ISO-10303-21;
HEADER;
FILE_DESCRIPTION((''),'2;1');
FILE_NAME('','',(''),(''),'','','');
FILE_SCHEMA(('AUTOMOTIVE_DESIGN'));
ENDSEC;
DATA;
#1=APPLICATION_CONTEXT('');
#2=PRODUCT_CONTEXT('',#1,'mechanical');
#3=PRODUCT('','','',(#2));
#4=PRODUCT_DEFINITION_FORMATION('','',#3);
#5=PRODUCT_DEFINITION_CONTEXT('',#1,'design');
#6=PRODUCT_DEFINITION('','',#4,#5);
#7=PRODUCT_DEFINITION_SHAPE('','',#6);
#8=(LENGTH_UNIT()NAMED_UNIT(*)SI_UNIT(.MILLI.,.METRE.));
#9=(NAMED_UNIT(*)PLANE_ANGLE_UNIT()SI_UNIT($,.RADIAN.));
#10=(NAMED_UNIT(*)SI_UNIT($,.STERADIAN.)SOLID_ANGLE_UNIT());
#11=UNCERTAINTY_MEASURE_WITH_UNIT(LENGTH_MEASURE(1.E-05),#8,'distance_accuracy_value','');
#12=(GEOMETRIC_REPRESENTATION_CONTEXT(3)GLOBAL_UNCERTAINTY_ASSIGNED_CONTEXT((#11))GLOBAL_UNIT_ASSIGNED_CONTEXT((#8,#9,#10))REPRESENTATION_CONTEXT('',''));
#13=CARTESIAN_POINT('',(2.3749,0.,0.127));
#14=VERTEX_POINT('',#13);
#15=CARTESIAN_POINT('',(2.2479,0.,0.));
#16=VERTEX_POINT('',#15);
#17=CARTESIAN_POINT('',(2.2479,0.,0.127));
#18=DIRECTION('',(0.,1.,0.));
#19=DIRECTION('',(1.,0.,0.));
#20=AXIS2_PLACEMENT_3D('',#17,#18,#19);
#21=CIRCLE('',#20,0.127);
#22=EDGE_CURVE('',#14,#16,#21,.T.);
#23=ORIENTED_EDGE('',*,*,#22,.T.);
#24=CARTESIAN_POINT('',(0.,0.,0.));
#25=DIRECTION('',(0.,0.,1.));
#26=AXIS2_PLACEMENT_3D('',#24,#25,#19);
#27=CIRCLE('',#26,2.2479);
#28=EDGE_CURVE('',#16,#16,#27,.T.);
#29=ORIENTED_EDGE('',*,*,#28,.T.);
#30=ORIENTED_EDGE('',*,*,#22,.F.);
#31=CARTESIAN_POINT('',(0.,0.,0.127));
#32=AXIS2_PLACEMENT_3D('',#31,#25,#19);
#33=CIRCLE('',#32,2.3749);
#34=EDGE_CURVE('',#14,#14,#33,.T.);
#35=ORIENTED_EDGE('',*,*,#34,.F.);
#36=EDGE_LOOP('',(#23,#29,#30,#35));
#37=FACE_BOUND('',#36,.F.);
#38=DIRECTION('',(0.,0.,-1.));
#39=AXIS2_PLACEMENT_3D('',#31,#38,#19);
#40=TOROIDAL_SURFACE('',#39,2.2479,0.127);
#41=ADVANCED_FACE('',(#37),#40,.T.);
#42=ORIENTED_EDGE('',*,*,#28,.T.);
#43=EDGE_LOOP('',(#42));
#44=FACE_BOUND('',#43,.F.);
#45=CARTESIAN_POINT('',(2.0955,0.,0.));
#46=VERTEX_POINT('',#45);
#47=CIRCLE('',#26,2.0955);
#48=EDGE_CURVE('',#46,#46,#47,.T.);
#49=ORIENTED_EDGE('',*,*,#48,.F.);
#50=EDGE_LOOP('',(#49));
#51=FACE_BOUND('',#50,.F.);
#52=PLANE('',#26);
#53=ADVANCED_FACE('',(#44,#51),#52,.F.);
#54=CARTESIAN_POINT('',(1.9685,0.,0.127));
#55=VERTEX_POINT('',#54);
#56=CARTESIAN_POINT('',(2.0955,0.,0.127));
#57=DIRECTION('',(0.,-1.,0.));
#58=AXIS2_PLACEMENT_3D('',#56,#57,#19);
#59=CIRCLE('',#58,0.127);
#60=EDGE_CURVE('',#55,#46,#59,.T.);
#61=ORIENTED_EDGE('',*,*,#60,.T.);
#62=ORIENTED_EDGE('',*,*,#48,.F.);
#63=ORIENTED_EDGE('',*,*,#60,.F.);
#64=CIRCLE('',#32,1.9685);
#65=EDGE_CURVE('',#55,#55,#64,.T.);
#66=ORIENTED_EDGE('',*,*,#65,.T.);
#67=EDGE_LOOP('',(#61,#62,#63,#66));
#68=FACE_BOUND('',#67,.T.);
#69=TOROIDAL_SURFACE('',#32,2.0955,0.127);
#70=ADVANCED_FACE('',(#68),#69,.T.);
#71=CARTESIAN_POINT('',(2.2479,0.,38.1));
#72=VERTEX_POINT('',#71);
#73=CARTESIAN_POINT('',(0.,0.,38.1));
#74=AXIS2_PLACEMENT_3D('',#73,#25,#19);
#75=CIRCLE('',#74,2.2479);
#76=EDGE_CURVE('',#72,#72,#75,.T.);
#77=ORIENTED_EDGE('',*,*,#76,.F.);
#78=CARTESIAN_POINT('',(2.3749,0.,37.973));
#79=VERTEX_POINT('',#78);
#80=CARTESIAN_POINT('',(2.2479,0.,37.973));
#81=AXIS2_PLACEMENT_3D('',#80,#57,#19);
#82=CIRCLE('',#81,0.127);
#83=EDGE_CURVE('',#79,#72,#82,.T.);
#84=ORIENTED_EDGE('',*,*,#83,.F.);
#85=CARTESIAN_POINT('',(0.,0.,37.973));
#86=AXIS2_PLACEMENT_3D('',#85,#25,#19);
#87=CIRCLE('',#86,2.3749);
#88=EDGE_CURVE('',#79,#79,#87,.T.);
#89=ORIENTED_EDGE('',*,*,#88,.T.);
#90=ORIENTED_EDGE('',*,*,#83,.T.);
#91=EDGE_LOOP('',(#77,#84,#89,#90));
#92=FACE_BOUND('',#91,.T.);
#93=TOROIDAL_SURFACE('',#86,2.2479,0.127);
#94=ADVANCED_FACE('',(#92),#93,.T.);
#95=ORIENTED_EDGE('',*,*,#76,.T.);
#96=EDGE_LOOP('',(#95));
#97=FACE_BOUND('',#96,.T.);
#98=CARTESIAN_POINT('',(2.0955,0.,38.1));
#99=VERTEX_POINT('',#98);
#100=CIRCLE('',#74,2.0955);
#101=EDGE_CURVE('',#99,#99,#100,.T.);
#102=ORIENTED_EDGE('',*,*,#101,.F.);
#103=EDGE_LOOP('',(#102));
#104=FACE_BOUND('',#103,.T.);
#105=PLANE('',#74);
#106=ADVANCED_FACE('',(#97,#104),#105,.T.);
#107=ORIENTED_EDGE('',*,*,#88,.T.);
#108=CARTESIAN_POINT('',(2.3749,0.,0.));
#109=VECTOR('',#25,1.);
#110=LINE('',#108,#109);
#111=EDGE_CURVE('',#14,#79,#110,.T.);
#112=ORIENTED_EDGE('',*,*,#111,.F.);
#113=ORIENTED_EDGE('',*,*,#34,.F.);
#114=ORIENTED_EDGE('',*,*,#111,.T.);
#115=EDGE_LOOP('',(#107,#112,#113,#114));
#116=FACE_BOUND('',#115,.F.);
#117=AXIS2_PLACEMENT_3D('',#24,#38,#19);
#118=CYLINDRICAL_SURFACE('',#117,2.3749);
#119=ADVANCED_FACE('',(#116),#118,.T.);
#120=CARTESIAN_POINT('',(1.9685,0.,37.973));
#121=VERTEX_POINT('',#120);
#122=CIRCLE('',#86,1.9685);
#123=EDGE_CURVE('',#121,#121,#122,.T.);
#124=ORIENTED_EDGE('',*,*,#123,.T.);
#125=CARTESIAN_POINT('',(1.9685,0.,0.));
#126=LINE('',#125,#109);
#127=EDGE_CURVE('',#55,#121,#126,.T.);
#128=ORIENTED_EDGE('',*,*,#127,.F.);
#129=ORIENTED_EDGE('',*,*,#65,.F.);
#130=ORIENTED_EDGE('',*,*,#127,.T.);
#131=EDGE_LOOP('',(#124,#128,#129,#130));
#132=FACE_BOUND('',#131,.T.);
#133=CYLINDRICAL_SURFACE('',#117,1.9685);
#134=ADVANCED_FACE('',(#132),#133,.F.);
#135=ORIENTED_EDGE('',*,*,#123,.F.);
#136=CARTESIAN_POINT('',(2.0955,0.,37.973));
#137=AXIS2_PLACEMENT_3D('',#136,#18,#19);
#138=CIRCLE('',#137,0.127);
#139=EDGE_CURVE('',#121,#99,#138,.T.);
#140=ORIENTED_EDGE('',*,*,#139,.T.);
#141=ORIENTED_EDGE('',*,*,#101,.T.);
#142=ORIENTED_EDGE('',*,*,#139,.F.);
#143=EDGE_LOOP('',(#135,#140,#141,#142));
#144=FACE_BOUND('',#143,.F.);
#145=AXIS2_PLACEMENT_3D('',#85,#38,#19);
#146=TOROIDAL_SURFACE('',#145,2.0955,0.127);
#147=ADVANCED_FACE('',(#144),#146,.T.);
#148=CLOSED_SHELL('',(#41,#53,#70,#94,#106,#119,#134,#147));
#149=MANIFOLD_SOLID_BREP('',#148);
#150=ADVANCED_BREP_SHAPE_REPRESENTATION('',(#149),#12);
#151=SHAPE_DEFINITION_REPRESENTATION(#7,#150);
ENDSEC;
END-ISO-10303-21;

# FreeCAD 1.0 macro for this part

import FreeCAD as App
import Part
import Sketcher

V = App.Vector
Q = App.Units.Quantity


def edges_at(feature, points):
    """Names of the edges that pass closest to the given points."""
    edges = feature.Shape.Edges
    near = lambda p: min(range(len(edges)), key=lambda i: edges[i].distToShape(Part.Vertex(*p))[0])
    return sorted({f"Edge{near(p) + 1}" for p in points})

doc = App.newDocument("Part")
body = doc.addObject("PartDesign::Body", "Body")

# Sketch on XY plane
sketch1 = body.newObject("Sketcher::SketchObject", "Sketch")
sketch1.AttachmentSupport = (doc.getObject("XY_Plane"), [""])
sketch1.MapMode = "FlatFace"
sketch1.addGeometry([
    Part.Circle(V(0, 0, 0), V(0, 0, 1), 2.4),
    Part.Circle(V(0, 0, 0), V(0, 0, 1), 2),
], False)
sketch1.addConstraint([
    Sketcher.Constraint("Coincident", 0, 3, -1, 1),
    Sketcher.Constraint("Coincident", 1, 3, -1, 1),
    Sketcher.Constraint("Diameter", 0, Q("0.187 in")),
    Sketcher.Constraint("Diameter", 1, Q("0.155 in")),
])
pad1 = body.newObject("PartDesign::Pad", "Pad")
pad1.Profile = sketch1
pad1.Length = Q("1.5 in")
doc.recompute()

fillet = body.newObject("PartDesign::Fillet", "Fillet")
fillet.Base = (pad1, edges_at(pad1, [
    (-2.375, 0, 38.1),
    (-1.968, 0, 38.1),
    (-1.968, 0, 0),
    (-2.375, 0, 0),
]))
fillet.Radius = Q("0.005 in")

doc.recompute()
